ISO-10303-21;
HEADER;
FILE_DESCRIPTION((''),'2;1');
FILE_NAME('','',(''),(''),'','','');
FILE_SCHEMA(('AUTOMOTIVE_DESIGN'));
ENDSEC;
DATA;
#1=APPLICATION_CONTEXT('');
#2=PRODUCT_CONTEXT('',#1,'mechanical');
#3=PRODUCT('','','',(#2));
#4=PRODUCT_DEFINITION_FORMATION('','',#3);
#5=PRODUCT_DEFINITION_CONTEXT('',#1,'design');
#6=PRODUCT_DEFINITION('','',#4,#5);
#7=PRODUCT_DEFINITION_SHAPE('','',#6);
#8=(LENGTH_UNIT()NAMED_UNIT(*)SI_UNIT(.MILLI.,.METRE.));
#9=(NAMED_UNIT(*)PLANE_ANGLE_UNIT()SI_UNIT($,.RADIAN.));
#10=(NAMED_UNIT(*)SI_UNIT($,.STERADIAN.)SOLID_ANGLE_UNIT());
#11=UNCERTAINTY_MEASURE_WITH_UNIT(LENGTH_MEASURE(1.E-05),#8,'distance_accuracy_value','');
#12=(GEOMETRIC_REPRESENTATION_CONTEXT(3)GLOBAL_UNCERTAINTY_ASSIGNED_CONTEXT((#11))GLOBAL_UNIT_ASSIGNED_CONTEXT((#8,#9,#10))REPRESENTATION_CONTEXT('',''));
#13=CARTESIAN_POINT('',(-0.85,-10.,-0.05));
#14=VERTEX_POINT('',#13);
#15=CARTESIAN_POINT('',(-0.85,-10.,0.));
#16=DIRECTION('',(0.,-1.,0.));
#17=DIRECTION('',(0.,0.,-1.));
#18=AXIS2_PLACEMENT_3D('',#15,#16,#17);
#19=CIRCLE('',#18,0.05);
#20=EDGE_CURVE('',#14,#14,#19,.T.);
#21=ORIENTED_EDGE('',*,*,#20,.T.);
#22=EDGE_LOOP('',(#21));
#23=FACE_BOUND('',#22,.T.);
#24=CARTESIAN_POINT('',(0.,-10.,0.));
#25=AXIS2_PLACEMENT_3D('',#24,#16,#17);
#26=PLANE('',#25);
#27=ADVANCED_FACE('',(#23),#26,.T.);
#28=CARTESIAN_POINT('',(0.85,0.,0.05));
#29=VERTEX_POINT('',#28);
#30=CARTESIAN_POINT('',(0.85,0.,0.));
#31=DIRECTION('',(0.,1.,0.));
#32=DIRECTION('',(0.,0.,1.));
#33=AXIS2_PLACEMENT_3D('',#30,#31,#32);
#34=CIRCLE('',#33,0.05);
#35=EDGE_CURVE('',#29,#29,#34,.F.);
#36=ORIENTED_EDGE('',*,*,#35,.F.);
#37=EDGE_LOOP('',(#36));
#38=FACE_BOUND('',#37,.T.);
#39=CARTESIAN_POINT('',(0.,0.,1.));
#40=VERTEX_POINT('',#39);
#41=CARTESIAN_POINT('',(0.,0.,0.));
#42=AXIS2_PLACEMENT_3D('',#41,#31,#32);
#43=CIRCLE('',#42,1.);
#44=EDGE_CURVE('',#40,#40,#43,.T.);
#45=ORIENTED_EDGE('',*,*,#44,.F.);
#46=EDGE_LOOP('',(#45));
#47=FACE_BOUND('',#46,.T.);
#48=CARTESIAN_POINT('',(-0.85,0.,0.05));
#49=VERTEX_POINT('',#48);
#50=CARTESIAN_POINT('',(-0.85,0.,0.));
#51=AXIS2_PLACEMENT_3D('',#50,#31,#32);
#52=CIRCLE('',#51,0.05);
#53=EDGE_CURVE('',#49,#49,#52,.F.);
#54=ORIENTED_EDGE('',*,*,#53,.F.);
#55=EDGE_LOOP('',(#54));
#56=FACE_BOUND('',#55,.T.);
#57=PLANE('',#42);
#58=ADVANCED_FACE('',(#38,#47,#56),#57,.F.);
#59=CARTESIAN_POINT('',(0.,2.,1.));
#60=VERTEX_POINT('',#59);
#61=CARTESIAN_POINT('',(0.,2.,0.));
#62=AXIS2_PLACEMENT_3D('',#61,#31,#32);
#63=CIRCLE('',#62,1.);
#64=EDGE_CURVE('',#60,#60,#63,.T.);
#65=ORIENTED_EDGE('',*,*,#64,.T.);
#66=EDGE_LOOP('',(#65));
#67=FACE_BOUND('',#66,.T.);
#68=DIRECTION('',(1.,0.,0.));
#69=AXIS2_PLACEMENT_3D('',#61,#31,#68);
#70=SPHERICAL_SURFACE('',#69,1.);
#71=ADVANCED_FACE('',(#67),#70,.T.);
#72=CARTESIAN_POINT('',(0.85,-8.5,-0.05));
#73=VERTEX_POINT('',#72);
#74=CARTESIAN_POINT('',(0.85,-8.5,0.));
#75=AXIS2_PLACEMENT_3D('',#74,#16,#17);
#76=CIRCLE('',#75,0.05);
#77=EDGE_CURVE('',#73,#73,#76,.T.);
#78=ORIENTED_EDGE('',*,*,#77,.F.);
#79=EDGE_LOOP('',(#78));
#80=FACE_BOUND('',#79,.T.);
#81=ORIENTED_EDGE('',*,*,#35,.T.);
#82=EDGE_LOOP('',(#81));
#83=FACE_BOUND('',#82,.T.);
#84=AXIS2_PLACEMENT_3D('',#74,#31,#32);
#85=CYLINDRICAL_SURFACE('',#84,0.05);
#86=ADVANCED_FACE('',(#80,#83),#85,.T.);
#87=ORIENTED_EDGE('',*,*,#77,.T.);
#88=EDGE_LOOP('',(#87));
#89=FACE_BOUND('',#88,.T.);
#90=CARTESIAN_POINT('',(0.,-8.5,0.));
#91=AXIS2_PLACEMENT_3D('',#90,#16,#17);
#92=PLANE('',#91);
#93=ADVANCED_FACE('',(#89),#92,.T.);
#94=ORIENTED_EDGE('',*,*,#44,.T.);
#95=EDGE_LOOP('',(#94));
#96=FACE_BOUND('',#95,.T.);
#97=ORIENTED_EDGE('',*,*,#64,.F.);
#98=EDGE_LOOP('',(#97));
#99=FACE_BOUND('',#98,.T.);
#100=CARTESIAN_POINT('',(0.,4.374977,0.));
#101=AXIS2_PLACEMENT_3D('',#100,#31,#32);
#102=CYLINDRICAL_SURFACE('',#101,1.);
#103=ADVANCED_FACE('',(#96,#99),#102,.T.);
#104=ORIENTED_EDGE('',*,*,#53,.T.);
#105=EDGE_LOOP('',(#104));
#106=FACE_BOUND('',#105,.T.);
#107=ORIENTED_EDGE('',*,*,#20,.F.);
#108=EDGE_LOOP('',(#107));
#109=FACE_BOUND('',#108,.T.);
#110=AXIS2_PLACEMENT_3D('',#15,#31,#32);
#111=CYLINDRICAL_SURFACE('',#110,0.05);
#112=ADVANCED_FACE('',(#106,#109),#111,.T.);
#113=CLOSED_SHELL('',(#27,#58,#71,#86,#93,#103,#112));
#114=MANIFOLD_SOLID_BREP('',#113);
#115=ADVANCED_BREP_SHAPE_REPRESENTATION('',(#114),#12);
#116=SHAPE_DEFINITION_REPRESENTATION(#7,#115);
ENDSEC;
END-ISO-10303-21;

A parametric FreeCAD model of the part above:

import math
import FreeCAD as App
import Part
import Sketcher
Q = App.Units.Quantity

doc = App.newDocument("Part")
body = doc.addObject("PartDesign::Body", "Body")

# Sketch on XY plane
sketch1 = body.newObject("Sketcher::SketchObject", "Sketch")
sketch1.AttachmentSupport = (doc.getObject("XY_Plane"), [""])
sketch1.MapMode = "FlatFace"
sketch1.addGeometry([
    Part.LineSegment(App.Vector(0, 0, 0), App.Vector(1, 0, 0)),
    Part.LineSegment(App.Vector(1, 0, 0), App.Vector(1, 2, 0)),
    Part.ArcOfCircle(Part.Circle(App.Vector(0, 2, 0), App.Vector(0, 0, 1), 1), math.radians(0), math.radians(90)),
    Part.LineSegment(App.Vector(0, 3, 0), App.Vector(0, 0, 0)),
], False)
sketch1.addConstraint([
    Sketcher.Constraint("Coincident", 0, 2, 1, 1),
    Sketcher.Constraint("Tangent", 1, 2, 2, 1),
    Sketcher.Constraint("Coincident", 2, 2, 3, 1),
    Sketcher.Constraint("Coincident", 3, 2, 0, 1),
    Sketcher.Constraint("Horizontal", 0),
    Sketcher.Constraint("Vertical", 1),
    Sketcher.Constraint("Vertical", 3),
    Sketcher.Constraint("Coincident", 3, 2, -1, 1),
    Sketcher.Constraint("PointOnObject", 2, 3, -2),
    Sketcher.Constraint("Radius", 2, Q("1 mm")),
    Sketcher.Constraint("DistanceY", 1, 1, 1, 2, Q("2 mm")),
])
revolution = body.newObject("PartDesign::Revolution", "Revolution")
revolution.Profile = sketch1
revolution.ReferenceAxis = (sketch1, ["V_Axis"])
revolution.Angle = 360

# Sketch on XZ plane
sketch2 = body.newObject("Sketcher::SketchObject", "Sketch001")
sketch2.AttachmentSupport = (doc.getObject("XZ_Plane"), [""])
sketch2.MapMode = "FlatFace"
sketch2.addGeometry(Part.Circle(App.Vector(-0.85, 0, 0), App.Vector(0, 0, 1), 0.05), False)
sketch2.addConstraint([
    Sketcher.Constraint("PointOnObject", 0, 3, -1),
    Sketcher.Constraint("Diameter", 0, Q("0.1 mm")),
    Sketcher.Constraint("DistanceX", 0, 3, -1, 1, Q("0.85 mm")),
])
pad1 = body.newObject("PartDesign::Pad", "Pad")
pad1.Profile = sketch2
pad1.Length = 10

# Sketch on XZ plane
sketch3 = body.newObject("Sketcher::SketchObject", "Sketch002")
sketch3.AttachmentSupport = (doc.getObject("XZ_Plane"), [""])
sketch3.MapMode = "FlatFace"
sketch3.addGeometry(Part.Circle(App.Vector(0.85, 0, 0), App.Vector(0, 0, 1), 0.05), False)
sketch3.addConstraint([
    Sketcher.Constraint("PointOnObject", 0, 3, -1),
    Sketcher.Constraint("Diameter", 0, Q("0.1 mm")),
    Sketcher.Constraint("DistanceX", -1, 1, 0, 3, Q("0.85 mm")),
])
pad2 = body.newObject("PartDesign::Pad", "Pad001")
pad2.Profile = sketch3
pad2.Length = 8.5

doc.recompute()
